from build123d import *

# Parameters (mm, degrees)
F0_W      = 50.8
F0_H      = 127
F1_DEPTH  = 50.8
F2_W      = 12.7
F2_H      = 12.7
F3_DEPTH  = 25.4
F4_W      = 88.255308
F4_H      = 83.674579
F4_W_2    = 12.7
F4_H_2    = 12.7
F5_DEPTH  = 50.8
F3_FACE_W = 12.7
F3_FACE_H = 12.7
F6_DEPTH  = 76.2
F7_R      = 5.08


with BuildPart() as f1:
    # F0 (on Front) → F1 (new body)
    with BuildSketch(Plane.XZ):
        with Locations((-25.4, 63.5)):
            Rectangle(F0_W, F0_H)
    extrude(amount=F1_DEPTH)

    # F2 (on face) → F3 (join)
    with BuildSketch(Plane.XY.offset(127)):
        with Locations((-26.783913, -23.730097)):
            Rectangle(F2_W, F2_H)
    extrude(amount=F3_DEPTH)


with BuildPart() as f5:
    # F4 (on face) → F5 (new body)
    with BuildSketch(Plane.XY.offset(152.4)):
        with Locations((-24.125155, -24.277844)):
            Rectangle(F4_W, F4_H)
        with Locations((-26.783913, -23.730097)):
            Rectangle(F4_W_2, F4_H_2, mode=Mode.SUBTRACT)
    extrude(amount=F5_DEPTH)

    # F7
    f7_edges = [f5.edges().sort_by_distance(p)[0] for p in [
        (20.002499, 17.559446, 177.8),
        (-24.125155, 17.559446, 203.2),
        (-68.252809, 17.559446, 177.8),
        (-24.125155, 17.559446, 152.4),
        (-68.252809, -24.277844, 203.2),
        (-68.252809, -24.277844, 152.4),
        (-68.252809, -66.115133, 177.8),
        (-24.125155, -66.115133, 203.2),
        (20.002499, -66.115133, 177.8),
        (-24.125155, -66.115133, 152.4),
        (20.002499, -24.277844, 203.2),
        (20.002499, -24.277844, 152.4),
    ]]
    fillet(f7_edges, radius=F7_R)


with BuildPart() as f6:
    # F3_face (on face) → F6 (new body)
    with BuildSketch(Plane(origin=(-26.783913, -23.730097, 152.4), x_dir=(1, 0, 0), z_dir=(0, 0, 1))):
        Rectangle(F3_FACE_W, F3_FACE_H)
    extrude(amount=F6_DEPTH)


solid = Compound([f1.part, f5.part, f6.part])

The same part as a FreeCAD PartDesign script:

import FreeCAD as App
import Part
import Sketcher
Q = App.Units.Quantity


def edges_at(feature, points):
    """Names of the edges that pass closest to the given points."""
    edges = feature.Shape.Edges
    near = lambda p: min(range(len(edges)), key=lambda i: edges[i].distToShape(Part.Vertex(*p))[0])
    return sorted({f"Edge{near(p) + 1}" for p in points})


def add_polygon(sketch, points):
    """Adds a closed chain of lines whose ends are joined by coincident constraints."""
    first, n = sketch.GeometryCount, len(points)
    for a, b in zip(points, points[1:] + points[:1]):
        sketch.addGeometry(Part.LineSegment(App.Vector(*a, 0), App.Vector(*b, 0)), False)
    for i in range(n):
        sketch.addConstraint(Sketcher.Constraint("Coincident", first + i, 2, first + (i + 1) % n, 1))

doc = App.newDocument("Part")
body = doc.addObject("PartDesign::Body", "Body")

sketch1 = body.newObject("Sketcher::SketchObject", "Sketch")
sketch1.AttachmentSupport = (doc.getObject("XZ_Plane"), [""])
sketch1.MapMode = "FlatFace"
add_polygon(sketch1, [(-50.8, 127), (-50.8, 0), (0, 0), (0, 127)])
sketch1.addConstraint(Sketcher.Constraint("Vertical", 0))
sketch1.addConstraint(Sketcher.Constraint("Horizontal", 1))
sketch1.addConstraint(Sketcher.Constraint("Vertical", 2))
sketch1.addConstraint(Sketcher.Constraint("Horizontal", 3))
sketch1.addConstraint(Sketcher.Constraint("Coincident", 1, 2, -1, 1))
sketch1.addConstraint(Sketcher.Constraint("DistanceX", 1, 1, 1, 2, Q("2 in")))
sketch1.addConstraint(Sketcher.Constraint("DistanceY", 0, 2, 0, 1, Q("5 in")))
pad1 = body.newObject("PartDesign::Pad", "Pad")
pad1.Profile = sketch1
pad1.Length = Q("2 in")

sketch2 = body.newObject("Sketcher::SketchObject", "Sketch001")
sketch2.AttachmentSupport = (doc.getObject("XY_Plane"), [""])
sketch2.MapMode = "FlatFace"
sketch2.AttachmentOffset = App.Placement(App.Vector(0, 0, 5 * 25.4), App.Rotation())
add_polygon(sketch2, [(-33.133913, -17.380097), (-33.133913, -30.080097), (-20.433913, -30.080097), (-20.433913, -17.380097)])
sketch2.addConstraint(Sketcher.Constraint("Vertical", 0))
sketch2.addConstraint(Sketcher.Constraint("Horizontal", 1))
sketch2.addConstraint(Sketcher.Constraint("Vertical", 2))
sketch2.addConstraint(Sketcher.Constraint("Horizontal", 3))
sketch2.addConstraint(Sketcher.Constraint("Equal", 3, 0))
sketch2.addConstraint(Sketcher.Constraint("DistanceX", 1, 1, 1, 2, Q("0.5 in")))
sketch2.addConstraint(Sketcher.Constraint("DistanceX", 0, 2, -1, 1, 33.133913))
sketch2.addConstraint(Sketcher.Constraint("DistanceY", 0, 2, -1, 1, 30.080097))
pad2 = body.newObject("PartDesign::Pad", "Pad001")
pad2.Profile = sketch2
pad2.Length = Q("1 in")
body2 = doc.addObject("PartDesign::Body", "Body001")

sketch3 = body2.newObject("Sketcher::SketchObject", "Sketch002")
sketch3.AttachmentSupport = (doc.getObject("XY_Plane001"), [""])
sketch3.MapMode = "FlatFace"
sketch3.AttachmentOffset = App.Placement(App.Vector(0, 0, 6 * 25.4), App.Rotation())
add_polygon(sketch3, [(-68.252809, 17.559445), (-68.252809, -66.115133), (20.002499, -66.115133), (20.002499, 17.559445)])
add_polygon(sketch3, [(-20.433913, -30.080097), (-33.133913, -30.080097), (-33.133913, -17.380097), (-20.433913, -17.380097)])
sketch3.addConstraint(Sketcher.Constraint("Vertical", 0))
sketch3.addConstraint(Sketcher.Constraint("Horizontal", 1))
sketch3.addConstraint(Sketcher.Constraint("Vertical", 2))
sketch3.addConstraint(Sketcher.Constraint("Horizontal", 3))
sketch3.addConstraint(Sketcher.Constraint("Horizontal", 4))
sketch3.addConstraint(Sketcher.Constraint("Vertical", 5))
sketch3.addConstraint(Sketcher.Constraint("Horizontal", 6))
sketch3.addConstraint(Sketcher.Constraint("Vertical", 7))
sketch3.addConstraint(Sketcher.Constraint("Equal", 6, 5))
sketch3.addConstraint(Sketcher.Constraint("DistanceX", 4, 2, 4, 1, Q("0.5 in")))
sketch3.addConstraint(Sketcher.Constraint("DistanceX", -1, 1, 1, 2, Q("0.7875 in")))
sketch3.addConstraint(Sketcher.Constraint("DistanceX", 1, 1, 1, 2, 88.255308))
sketch3.addConstraint(Sketcher.Constraint("DistanceY", 0, 2, 0, 1, 83.674579))
sketch3.addConstraint(Sketcher.Constraint("DistanceY", 0, 2, -1, 1, 66.115133))
sketch3.addConstraint(Sketcher.Constraint("DistanceX", 4, 2, -1, 1, 33.133913))
sketch3.addConstraint(Sketcher.Constraint("DistanceY", 4, 2, -1, 1, 30.080097))
pad3 = body2.newObject("PartDesign::Pad", "Pad002")
pad3.Profile = sketch3
pad3.Length = Q("2 in")
doc.recompute()

fillet = body2.newObject("PartDesign::Fillet", "Fillet")
fillet.Base = (pad3, edges_at(pad3, [
    (20.002, 17.559, 177.8),
    (-24.125, 17.559, 203.2),
    (-68.253, 17.559, 177.8),
    (-24.125, 17.559, 152.4),
    (-68.253, -24.278, 203.2),
    (-68.253, -24.278, 152.4),
    (-68.253, -66.115, 177.8),
    (-24.125, -66.115, 203.2),
    (20.002, -66.115, 177.8),
    (-24.125, -66.115, 152.4),
    (20.002, -24.278, 203.2),
    (20.002, -24.278, 152.4),
]))
fillet.Radius = Q("0.2 in")
body3 = doc.addObject("PartDesign::Body", "Body002")

sketch4 = body3.newObject("Sketcher::SketchObject", "Sketch003")
sketch4.AttachmentSupport = (doc.getObject("XY_Plane002"), [""])
sketch4.MapMode = "FlatFace"
sketch4.AttachmentOffset = App.Placement(App.Vector(0, 0, 6 * 25.4), App.Rotation())
add_polygon(sketch4, [(-33.133913, -17.380097), (-33.133913, -30.080097), (-20.433913, -30.080097), (-20.433913, -17.380097)])
sketch4.addConstraint(Sketcher.Constraint("Vertical", 0))
sketch4.addConstraint(Sketcher.Constraint("Horizontal", 1))
sketch4.addConstraint(Sketcher.Constraint("Vertical", 2))
sketch4.addConstraint(Sketcher.Constraint("Horizontal", 3))
sketch4.addConstraint(Sketcher.Constraint("Equal", 3, 0))
sketch4.addConstraint(Sketcher.Constraint("DistanceX", 1, 1, 1, 2, Q("0.5 in")))
sketch4.addConstraint(Sketcher.Constraint("DistanceX", 0, 2, -1, 1, 33.133913))
sketch4.addConstraint(Sketcher.Constraint("DistanceY", 0, 2, -1, 1, 30.080097))
pad4 = body3.newObject("PartDesign::Pad", "Pad003")
pad4.Profile = sketch4
pad4.Length = Q("3 in")

doc.recompute()
